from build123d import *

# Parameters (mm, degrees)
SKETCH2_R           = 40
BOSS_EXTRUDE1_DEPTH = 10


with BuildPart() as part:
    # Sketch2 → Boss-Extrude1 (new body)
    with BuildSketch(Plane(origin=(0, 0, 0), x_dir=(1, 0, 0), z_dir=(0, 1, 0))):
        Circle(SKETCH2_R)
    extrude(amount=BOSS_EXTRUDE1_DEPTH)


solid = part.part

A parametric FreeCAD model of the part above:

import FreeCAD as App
import Part
import Sketcher

V = App.Vector

doc = App.newDocument("Part")
body = doc.addObject("PartDesign::Body", "Body")

# Sketch on XZ plane
sketch1 = body.newObject("Sketcher::SketchObject", "Sketch")
sketch1.AttachmentSupport = (doc.getObject("XZ_Plane"), [""])
sketch1.MapMode = "FlatFace"
sketch1.addGeometry(Part.Circle(V(0, 0, 0), V(0, 0, 1), 40), False)
sketch1.addConstraint([
    Sketcher.Constraint("Coincident", 0, 3, -1, 1),
    Sketcher.Constraint("Diameter", 0, 80.0),
])
pad1 = body.newObject("PartDesign::Pad", "Pad")
pad1.Profile = sketch1
pad1.Length = 10
pad1.Reversed = True

doc.recompute()
